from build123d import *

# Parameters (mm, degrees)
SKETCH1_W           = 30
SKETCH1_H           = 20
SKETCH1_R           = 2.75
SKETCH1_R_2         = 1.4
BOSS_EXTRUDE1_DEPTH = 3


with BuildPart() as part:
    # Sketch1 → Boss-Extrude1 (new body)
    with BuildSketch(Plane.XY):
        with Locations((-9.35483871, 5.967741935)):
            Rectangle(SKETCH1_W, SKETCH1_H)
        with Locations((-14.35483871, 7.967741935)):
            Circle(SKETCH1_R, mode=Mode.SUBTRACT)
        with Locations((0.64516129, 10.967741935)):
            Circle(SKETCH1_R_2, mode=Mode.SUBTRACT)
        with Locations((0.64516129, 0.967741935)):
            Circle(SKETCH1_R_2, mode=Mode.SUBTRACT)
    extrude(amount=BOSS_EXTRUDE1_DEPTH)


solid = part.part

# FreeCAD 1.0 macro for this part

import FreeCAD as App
import Part
import Sketcher

V = App.Vector
Q = App.Units.Quantity

doc = App.newDocument("Part")
body = doc.addObject("PartDesign::Body", "Body")

sketch1 = body.newObject("Sketcher::SketchObject", "Sketch")
sketch1.AttachmentSupport = (doc.getObject("XY_Plane"), [""])
sketch1.MapMode = "FlatFace"
sketch1.addGeometry(Part.LineSegment(V(-24.4, 16, 0), V(-24.4, -4, 0)), False)
sketch1.addGeometry(Part.LineSegment(V(-24.4, -4, 0), V(5.6, -4, 0)), False)
sketch1.addGeometry(Part.LineSegment(V(5.6, -4, 0), V(5.6, 16, 0)), False)
sketch1.addGeometry(Part.LineSegment(V(5.6, 16, 0), V(-24.4, 16, 0)), False)
sketch1.addGeometry(Part.Circle(V(0.6, 1, 0), V(0, 0, 1), 1.4), False)
sketch1.addGeometry(Part.Circle(V(-14.4, 8, 0), V(0, 0, 1), 2.8), False)
sketch1.addGeometry(Part.Circle(V(0.6, 11, 0), V(0, 0, 1), 1.4), False)
sketch1.addConstraint(Sketcher.Constraint("Coincident", 0, 2, 1, 1))
sketch1.addConstraint(Sketcher.Constraint("Coincident", 1, 2, 2, 1))
sketch1.addConstraint(Sketcher.Constraint("Coincident", 2, 2, 3, 1))
sketch1.addConstraint(Sketcher.Constraint("Coincident", 3, 2, 0, 1))
sketch1.addConstraint(Sketcher.Constraint("Vertical", 0))
sketch1.addConstraint(Sketcher.Constraint("Horizontal", 1))
sketch1.addConstraint(Sketcher.Constraint("Vertical", 2))
sketch1.addConstraint(Sketcher.Constraint("Horizontal", 3))
sketch1.addConstraint(Sketcher.Constraint("Equal", 4, 6))
sketch1.addConstraint(Sketcher.Constraint("Vertical", 4, 3, 6, 3))
sketch1.addConstraint(Sketcher.Constraint("Diameter", 4, Q("2.8 mm")))
sketch1.addConstraint(Sketcher.Constraint("Diameter", 5, Q("5.5 mm")))
sketch1.addConstraint(Sketcher.Constraint("DistanceX", 1, 1, 1, 2, Q("30 mm")))
sketch1.addConstraint(Sketcher.Constraint("DistanceY", 0, 2, 0, 1, Q("20 mm")))
sketch1.addConstraint(Sketcher.Constraint("DistanceX", 5, 3, 4, 3, Q("15 mm")))
sketch1.addConstraint(Sketcher.Constraint("DistanceY", 4, 3, 5, 3, Q("7 mm")))
sketch1.addConstraint(Sketcher.Constraint("DistanceY", 4, 3, 6, 3, Q("10 mm")))
sketch1.addConstraint(Sketcher.Constraint("DistanceX", 0, 2, 5, 3, Q("10 mm")))
sketch1.addConstraint(Sketcher.Constraint("DistanceY", 0, 2, 5, 3, Q("12 mm")))
sketch1.addConstraint(Sketcher.Constraint("DistanceX", -1, 1, 4, 3, Q("0.645161 mm")))
sketch1.addConstraint(Sketcher.Constraint("DistanceY", -1, 1, 4, 3, Q("0.967742 mm")))
pad1 = body.newObject("PartDesign::Pad", "Pad")
pad1.Profile = sketch1
pad1.Length = 3

doc.recompute()
